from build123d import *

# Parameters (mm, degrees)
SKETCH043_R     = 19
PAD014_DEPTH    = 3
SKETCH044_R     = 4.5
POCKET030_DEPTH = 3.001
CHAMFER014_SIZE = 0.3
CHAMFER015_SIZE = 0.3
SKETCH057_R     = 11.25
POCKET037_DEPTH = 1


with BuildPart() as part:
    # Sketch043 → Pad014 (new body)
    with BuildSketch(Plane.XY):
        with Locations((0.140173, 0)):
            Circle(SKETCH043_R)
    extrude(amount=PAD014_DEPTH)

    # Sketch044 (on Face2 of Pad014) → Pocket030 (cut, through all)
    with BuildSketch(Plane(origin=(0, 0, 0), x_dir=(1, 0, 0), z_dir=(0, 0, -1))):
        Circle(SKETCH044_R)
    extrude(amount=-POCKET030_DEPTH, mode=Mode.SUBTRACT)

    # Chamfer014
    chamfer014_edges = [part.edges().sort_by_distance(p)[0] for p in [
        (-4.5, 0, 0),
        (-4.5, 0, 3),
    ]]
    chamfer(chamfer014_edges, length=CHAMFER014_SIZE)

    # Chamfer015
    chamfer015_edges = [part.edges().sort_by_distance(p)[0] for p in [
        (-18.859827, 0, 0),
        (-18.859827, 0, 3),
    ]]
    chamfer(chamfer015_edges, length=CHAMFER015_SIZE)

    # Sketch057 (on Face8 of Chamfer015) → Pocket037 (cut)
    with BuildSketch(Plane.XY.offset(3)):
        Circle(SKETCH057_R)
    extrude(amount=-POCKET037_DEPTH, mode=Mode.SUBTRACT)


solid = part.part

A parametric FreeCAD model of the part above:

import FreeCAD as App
import Part
import Sketcher


def edges_at(feature, points):
    """Names of the edges that pass closest to the given points."""
    edges = feature.Shape.Edges
    near = lambda p: min(range(len(edges)), key=lambda i: edges[i].distToShape(Part.Vertex(*p))[0])
    return sorted({f"Edge{near(p) + 1}" for p in points})

doc = App.newDocument("Part")
body = doc.addObject("PartDesign::Body", "Body")

# Sketch on XY plane
sketch1 = body.newObject("Sketcher::SketchObject", "Sketch")
sketch1.AttachmentSupport = (doc.getObject("XY_Plane"), [""])
sketch1.MapMode = "FlatFace"
sketch1.addGeometry(Part.Circle(App.Vector(0.140173, 0, 0), App.Vector(0, 0, 1), 19), False)
sketch1.addConstraint(Sketcher.Constraint("PointOnObject", 0, 3, -1))
sketch1.addConstraint(Sketcher.Constraint("Diameter", 0, 38.0))
sketch1.addConstraint(Sketcher.Constraint("DistanceX", -1, 1, 0, 3, 0.140173))
pad1 = body.newObject("PartDesign::Pad", "Pad")
pad1.Profile = sketch1
pad1.Length = 3

# Sketch on XY plane
sketch2 = body.newObject("Sketcher::SketchObject", "Sketch001")
sketch2.AttachmentSupport = (doc.getObject("XY_Plane"), [""])
sketch2.MapMode = "FlatFace"
sketch2.addGeometry(Part.Circle(App.Vector(0, 0, 0), App.Vector(0, 0, 1), 4.5), False)
sketch2.addConstraint(Sketcher.Constraint("Coincident", 0, 3, -1, 1))
sketch2.addConstraint(Sketcher.Constraint("Diameter", 0, 9.0))
pocket1 = body.newObject("PartDesign::Pocket", "Pocket")
pocket1.Profile = sketch2
pocket1.Type = "ThroughAll"
pocket1.Reversed = True
doc.recompute()

chamfer = body.newObject("PartDesign::Chamfer", "Chamfer")
chamfer.Base = (pocket1, edges_at(pocket1, [(-4.5, 0, 0), (-4.5, 0, 3)]))
chamfer.Size = 0.3
doc.recompute()

chamfer2 = body.newObject("PartDesign::Chamfer", "Chamfer001")
chamfer2.Base = (chamfer, edges_at(chamfer, [(-18.86, 0, 0), (-18.86, 0, 3)]))
chamfer2.Size = 0.3

# Sketch on XY plane
sketch3 = body.newObject("Sketcher::SketchObject", "Sketch002")
sketch3.AttachmentSupport = (doc.getObject("XY_Plane"), [""])
sketch3.MapMode = "FlatFace"
sketch3.AttachmentOffset = App.Placement(App.Vector(0, 0, 3), App.Rotation())
sketch3.addGeometry(Part.Circle(App.Vector(0, 0, 0), App.Vector(0, 0, 1), 11.25), False)
sketch3.addConstraint(Sketcher.Constraint("Coincident", 0, 3, -1, 1))
sketch3.addConstraint(Sketcher.Constraint("Diameter", 0, 22.5))
pocket2 = body.newObject("PartDesign::Pocket", "Pocket001")
pocket2.Profile = sketch3
pocket2.Length = 1

doc.recompute()
